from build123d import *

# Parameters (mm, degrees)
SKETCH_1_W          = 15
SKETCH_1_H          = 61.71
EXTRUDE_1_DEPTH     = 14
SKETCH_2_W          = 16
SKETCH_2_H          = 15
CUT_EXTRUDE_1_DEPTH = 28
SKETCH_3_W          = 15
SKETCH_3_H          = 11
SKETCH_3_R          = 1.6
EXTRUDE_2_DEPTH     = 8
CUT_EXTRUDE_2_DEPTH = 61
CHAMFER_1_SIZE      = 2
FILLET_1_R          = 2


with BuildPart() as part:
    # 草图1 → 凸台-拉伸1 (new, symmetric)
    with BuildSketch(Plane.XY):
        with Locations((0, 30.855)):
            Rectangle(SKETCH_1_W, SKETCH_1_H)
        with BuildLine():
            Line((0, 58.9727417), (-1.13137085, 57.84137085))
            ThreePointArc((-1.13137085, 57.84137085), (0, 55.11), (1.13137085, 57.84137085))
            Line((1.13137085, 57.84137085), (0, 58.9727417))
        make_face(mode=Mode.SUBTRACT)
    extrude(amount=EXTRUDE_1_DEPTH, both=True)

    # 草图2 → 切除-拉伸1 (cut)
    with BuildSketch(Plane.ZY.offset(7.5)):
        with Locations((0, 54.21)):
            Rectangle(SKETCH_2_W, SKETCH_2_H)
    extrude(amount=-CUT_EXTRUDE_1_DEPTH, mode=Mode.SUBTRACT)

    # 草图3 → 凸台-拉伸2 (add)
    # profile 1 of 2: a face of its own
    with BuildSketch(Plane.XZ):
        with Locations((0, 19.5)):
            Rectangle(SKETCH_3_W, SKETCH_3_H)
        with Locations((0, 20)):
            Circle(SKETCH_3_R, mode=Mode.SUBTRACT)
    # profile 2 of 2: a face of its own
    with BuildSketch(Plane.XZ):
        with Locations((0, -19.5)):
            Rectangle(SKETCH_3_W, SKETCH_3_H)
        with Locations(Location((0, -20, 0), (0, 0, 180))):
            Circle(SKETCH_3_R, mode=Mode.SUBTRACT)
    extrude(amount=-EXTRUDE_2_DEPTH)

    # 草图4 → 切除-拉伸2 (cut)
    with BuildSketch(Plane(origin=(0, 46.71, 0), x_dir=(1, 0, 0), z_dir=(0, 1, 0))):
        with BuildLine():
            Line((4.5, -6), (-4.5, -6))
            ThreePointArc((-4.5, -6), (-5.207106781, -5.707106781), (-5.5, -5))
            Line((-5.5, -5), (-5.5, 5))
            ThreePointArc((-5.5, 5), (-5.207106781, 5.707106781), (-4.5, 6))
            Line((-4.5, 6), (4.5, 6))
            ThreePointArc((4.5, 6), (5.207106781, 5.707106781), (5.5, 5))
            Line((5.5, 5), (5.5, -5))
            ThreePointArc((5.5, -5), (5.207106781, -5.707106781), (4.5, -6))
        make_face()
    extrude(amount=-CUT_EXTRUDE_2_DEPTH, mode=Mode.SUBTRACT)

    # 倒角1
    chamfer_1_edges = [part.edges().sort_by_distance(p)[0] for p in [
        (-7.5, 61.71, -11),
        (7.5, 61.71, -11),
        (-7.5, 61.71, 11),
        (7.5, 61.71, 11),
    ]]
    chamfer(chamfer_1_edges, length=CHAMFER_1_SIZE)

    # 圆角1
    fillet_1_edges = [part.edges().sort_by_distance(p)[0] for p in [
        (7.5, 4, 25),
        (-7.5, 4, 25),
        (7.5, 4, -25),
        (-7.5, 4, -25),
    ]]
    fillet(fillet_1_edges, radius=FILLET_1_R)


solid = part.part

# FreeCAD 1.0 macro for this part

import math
import FreeCAD as App
import Part
import Sketcher
from FreeCAD import Vector


def edges_at(feature, points):
    """Names of the edges that pass closest to the given points."""
    edges = feature.Shape.Edges
    near = lambda p: min(range(len(edges)), key=lambda i: edges[i].distToShape(Part.Vertex(*p))[0])
    return sorted({f"Edge{near(p) + 1}" for p in points})

doc = App.newDocument("Part")
body = doc.addObject("PartDesign::Body", "Body")

# Sketch on XY plane
sketch1 = body.newObject("Sketcher::SketchObject", "Sketch")
sketch1.AttachmentSupport = (doc.getObject("XY_Plane"), [""])
sketch1.MapMode = "FlatFace"
sketch1.addGeometry([
    Part.LineSegment(Vector(-7.5, 61.7, 0), Vector(-7.5, 0, 0)),  # 0
    Part.LineSegment(Vector(-7.5, 0, 0), Vector(7.5, 0, 0)),  # 1
    Part.LineSegment(Vector(7.5, 0, 0), Vector(7.5, 61.7, 0)),  # 2
    Part.LineSegment(Vector(7.5, 61.7, 0), Vector(-7.5, 61.7, 0)),  # 3
    Part.LineSegment(Vector(-1.1, 57.8, 0), Vector(0, 59, 0)),  # 4
    Part.LineSegment(Vector(0, 59, 0), Vector(1.1, 57.8, 0)),  # 5
    Part.ArcOfCircle(Part.Circle(Vector(0, 56.7, 0), Vector(0, 0, 1), 1.6), math.radians(135), math.radians(405)),  # 6
], False)
sketch1.addConstraint([
    Sketcher.Constraint("Coincident", 0, 2, 1, 1),
    Sketcher.Constraint("Coincident", 1, 2, 2, 1),
    Sketcher.Constraint("Coincident", 2, 2, 3, 1),
    Sketcher.Constraint("Coincident", 3, 2, 0, 1),
    Sketcher.Constraint("Coincident", 4, 2, 5, 1),
    Sketcher.Constraint("Tangent", 5, 2, 6, 2),
    Sketcher.Constraint("Tangent", 6, 1, 4, 1),
    Sketcher.Constraint("Vertical", 0),
    Sketcher.Constraint("Horizontal", 1),
    Sketcher.Constraint("Vertical", 2),
    Sketcher.Constraint("Horizontal", 3),
    Sketcher.Constraint("Symmetric", 0, 2, 1, 2, -1, 1),
    Sketcher.Constraint("Symmetric", 5, 2, 6, 1, -2),
    Sketcher.Constraint("Perpendicular", 4, 5),
    Sketcher.Constraint("Radius", 6, 1.6),
    Sketcher.Constraint("DistanceX", 1, 1, 1, 2, 15.0),
    Sketcher.Constraint("DistanceY", 6, 3, 2, 2, 5.0),
    Sketcher.Constraint("DistanceY", 0, 2, 0, 1, 61.71),
])
pad1 = body.newObject("PartDesign::Pad", "Pad")
pad1.Profile = sketch1
pad1.Length = 28
pad1.Midplane = True

# Sketch on YZ plane
sketch2 = body.newObject("Sketcher::SketchObject", "Sketch001")
sketch2.AttachmentSupport = (doc.getObject("YZ_Plane"), [""])
sketch2.MapMode = "FlatFace"
sketch2.AttachmentOffset = App.Placement(Vector(0, 0, -7.5), App.Rotation())
sketch2.addGeometry([
    Part.LineSegment(Vector(62, -8, 0), Vector(47, -8, 0)),
    Part.LineSegment(Vector(47, -8, 0), Vector(47, 8, 0)),
    Part.LineSegment(Vector(47, 8, 0), Vector(62, 8, 0)),
    Part.LineSegment(Vector(62, 8, 0), Vector(62, -8, 0)),
], False)
sketch2.addConstraint([
    Sketcher.Constraint("Coincident", 0, 2, 1, 1),
    Sketcher.Constraint("Coincident", 1, 2, 2, 1),
    Sketcher.Constraint("Coincident", 2, 2, 3, 1),
    Sketcher.Constraint("Coincident", 3, 2, 0, 1),
    Sketcher.Constraint("Horizontal", 0),
    Sketcher.Constraint("Vertical", 1),
    Sketcher.Constraint("Horizontal", 2),
    Sketcher.Constraint("Vertical", 3),
    Sketcher.Constraint("DistanceX", 0, 2, 0, 1, 15.0),
    Sketcher.Constraint("DistanceY", 1, 1, 1, 2, 16.0),
    Sketcher.Constraint("DistanceY", 0, 2, -1, 1, 8.0),
    Sketcher.Constraint("DistanceX", -1, 1, 0, 2, 46.71),
])
pocket1 = body.newObject("PartDesign::Pocket", "Pocket")
pocket1.Profile = sketch2
pocket1.Length = 28
pocket1.Reversed = True

# Sketch on XZ plane
sketch3 = body.newObject("Sketcher::SketchObject", "Sketch002")
sketch3.AttachmentSupport = (doc.getObject("XZ_Plane"), [""])
sketch3.MapMode = "FlatFace"
sketch3.addGeometry([
    Part.LineSegment(Vector(-7.5, 25, 0), Vector(-7.5, 14, 0)),  # 0
    Part.LineSegment(Vector(-7.5, 14, 0), Vector(7.5, 14, 0)),  # 1
    Part.LineSegment(Vector(7.5, 14, 0), Vector(7.5, 25, 0)),  # 2
    Part.LineSegment(Vector(7.5, 25, 0), Vector(-7.5, 25, 0)),  # 3
    Part.Circle(Vector(0, 20, 0), Vector(0, 0, 1), 1.6),  # 4
    Part.LineSegment(Vector(-7.5, -14, 0), Vector(-7.5, -25, 0)),  # 5
    Part.LineSegment(Vector(-7.5, -25, 0), Vector(7.5, -25, 0)),  # 6
    Part.LineSegment(Vector(7.5, -25, 0), Vector(7.5, -14, 0)),  # 7
    Part.LineSegment(Vector(7.5, -14, 0), Vector(-7.5, -14, 0)),  # 8
    Part.Circle(Vector(0, -20, 0), Vector(0, 0, 1), 1.6),  # 9
], False)
sketch3.addConstraint([
    Sketcher.Constraint("Coincident", 0, 2, 1, 1),
    Sketcher.Constraint("Coincident", 1, 2, 2, 1),
    Sketcher.Constraint("Coincident", 2, 2, 3, 1),
    Sketcher.Constraint("Coincident", 3, 2, 0, 1),
    Sketcher.Constraint("Coincident", 5, 2, 6, 1),
    Sketcher.Constraint("Coincident", 6, 2, 7, 1),
    Sketcher.Constraint("Coincident", 7, 2, 8, 1),
    Sketcher.Constraint("Coincident", 8, 2, 5, 1),
    Sketcher.Constraint("Vertical", 0),
    Sketcher.Constraint("Horizontal", 1),
    Sketcher.Constraint("Vertical", 2),
    Sketcher.Constraint("Horizontal", 3),
    Sketcher.Constraint("Vertical", 5),
    Sketcher.Constraint("Horizontal", 6),
    Sketcher.Constraint("Vertical", 7),
    Sketcher.Constraint("Horizontal", 8),
    Sketcher.Constraint("Equal", 4, 9),
    Sketcher.Constraint("Symmetric", 4, 3, 9, 3, -1, 1),
    Sketcher.Constraint("Symmetric", 2, 2, 5, 2, -1, 1),
    Sketcher.Constraint("Symmetric", 0, 2, 7, 2, -1, 1),
    Sketcher.Constraint("PointOnObject", 4, 3, -2),
    Sketcher.Constraint("Vertical", 3, 2, 5, 2),
    Sketcher.Constraint("Diameter", 4, 3.2),
    Sketcher.Constraint("DistanceX", 1, 1, 1, 2, 15.0),
    Sketcher.Constraint("DistanceY", 0, 2, 0, 1, 11.0),
    Sketcher.Constraint("DistanceY", -1, 1, 4, 3, 20.0),
    Sketcher.Constraint("DistanceY", -1, 1, 0, 2, 14.0),
])
pad2 = body.newObject("PartDesign::Pad", "Pad001")
pad2.Profile = sketch3
pad2.Length = 8
pad2.Reversed = True

# Sketch on XZ plane
sketch4 = body.newObject("Sketcher::SketchObject", "Sketch003")
sketch4.AttachmentSupport = (doc.getObject("XZ_Plane"), [""])
sketch4.MapMode = "FlatFace"
sketch4.AttachmentOffset = App.Placement(Vector(0, 0, -46.71), App.Rotation())
sketch4.addGeometry([
    Part.LineSegment(Vector(-4.5, 6, 0), Vector(4.5, 6, 0)),  # 0
    Part.ArcOfCircle(Part.Circle(Vector(4.5, 5, 0), Vector(0, 0, 1), 1), math.radians(0), math.radians(90)),  # 1
    Part.LineSegment(Vector(5.5, 5, 0), Vector(5.5, -5, 0)),  # 2
    Part.ArcOfCircle(Part.Circle(Vector(4.5, -5, 0), Vector(0, 0, 1), 1), math.radians(-90), math.radians(0)),  # 3
    Part.LineSegment(Vector(4.5, -6, 0), Vector(-4.5, -6, 0)),  # 4
    Part.ArcOfCircle(Part.Circle(Vector(-4.5, -5, 0), Vector(0, 0, 1), 1), math.radians(-180), math.radians(-90)),  # 5
    Part.LineSegment(Vector(-5.5, -5, 0), Vector(-5.5, 5, 0)),  # 6
    Part.ArcOfCircle(Part.Circle(Vector(-4.5, 5, 0), Vector(0, 0, 1), 1), math.radians(90), math.radians(180)),  # 7
], False)
sketch4.addConstraint([
    Sketcher.Constraint("Tangent", 0, 2, 1, 2),
    Sketcher.Constraint("Tangent", 1, 1, 2, 1),
    Sketcher.Constraint("Tangent", 2, 2, 3, 2),
    Sketcher.Constraint("Tangent", 3, 1, 4, 1),
    Sketcher.Constraint("Tangent", 4, 2, 5, 2),
    Sketcher.Constraint("Tangent", 5, 1, 6, 1),
    Sketcher.Constraint("Tangent", 6, 2, 7, 2),
    Sketcher.Constraint("Tangent", 7, 1, 0, 1),
    Sketcher.Constraint("Horizontal", 0),
    Sketcher.Constraint("Vertical", 2),
    Sketcher.Constraint("Horizontal", 4),
    Sketcher.Constraint("Vertical", 6),
    Sketcher.Constraint("Equal", 1, 3),
    Sketcher.Constraint("Equal", 3, 5),
    Sketcher.Constraint("Equal", 5, 7),
    Sketcher.Constraint("Symmetric", 1, 3, 5, 3, -1, 1),
    Sketcher.Constraint("Radius", 1, 1.0),
    Sketcher.Constraint("DistanceX", 0, 1, 0, 2, 9.0),
    Sketcher.Constraint("DistanceY", 2, 2, 2, 1, 10.0),
])
pocket2 = body.newObject("PartDesign::Pocket", "Pocket001")
pocket2.Profile = sketch4
pocket2.Length = 61
pocket2.Reversed = True
doc.recompute()

chamfer = body.newObject("PartDesign::Chamfer", "Chamfer")
chamfer.Base = (pocket2, edges_at(pocket2, [
    (-7.5, 61.71, -11),
    (7.5, 61.71, -11),
    (-7.5, 61.71, 11),
    (7.5, 61.71, 11),
]))
chamfer.Size = 2
doc.recompute()

fillet = body.newObject("PartDesign::Fillet", "Fillet")
fillet.Base = (chamfer, edges_at(chamfer, [
    (7.5, 4, 25),
    (-7.5, 4, 25),
    (7.5, 4, -25),
    (-7.5, 4, -25),
]))
fillet.Radius = 2

doc.recompute()
